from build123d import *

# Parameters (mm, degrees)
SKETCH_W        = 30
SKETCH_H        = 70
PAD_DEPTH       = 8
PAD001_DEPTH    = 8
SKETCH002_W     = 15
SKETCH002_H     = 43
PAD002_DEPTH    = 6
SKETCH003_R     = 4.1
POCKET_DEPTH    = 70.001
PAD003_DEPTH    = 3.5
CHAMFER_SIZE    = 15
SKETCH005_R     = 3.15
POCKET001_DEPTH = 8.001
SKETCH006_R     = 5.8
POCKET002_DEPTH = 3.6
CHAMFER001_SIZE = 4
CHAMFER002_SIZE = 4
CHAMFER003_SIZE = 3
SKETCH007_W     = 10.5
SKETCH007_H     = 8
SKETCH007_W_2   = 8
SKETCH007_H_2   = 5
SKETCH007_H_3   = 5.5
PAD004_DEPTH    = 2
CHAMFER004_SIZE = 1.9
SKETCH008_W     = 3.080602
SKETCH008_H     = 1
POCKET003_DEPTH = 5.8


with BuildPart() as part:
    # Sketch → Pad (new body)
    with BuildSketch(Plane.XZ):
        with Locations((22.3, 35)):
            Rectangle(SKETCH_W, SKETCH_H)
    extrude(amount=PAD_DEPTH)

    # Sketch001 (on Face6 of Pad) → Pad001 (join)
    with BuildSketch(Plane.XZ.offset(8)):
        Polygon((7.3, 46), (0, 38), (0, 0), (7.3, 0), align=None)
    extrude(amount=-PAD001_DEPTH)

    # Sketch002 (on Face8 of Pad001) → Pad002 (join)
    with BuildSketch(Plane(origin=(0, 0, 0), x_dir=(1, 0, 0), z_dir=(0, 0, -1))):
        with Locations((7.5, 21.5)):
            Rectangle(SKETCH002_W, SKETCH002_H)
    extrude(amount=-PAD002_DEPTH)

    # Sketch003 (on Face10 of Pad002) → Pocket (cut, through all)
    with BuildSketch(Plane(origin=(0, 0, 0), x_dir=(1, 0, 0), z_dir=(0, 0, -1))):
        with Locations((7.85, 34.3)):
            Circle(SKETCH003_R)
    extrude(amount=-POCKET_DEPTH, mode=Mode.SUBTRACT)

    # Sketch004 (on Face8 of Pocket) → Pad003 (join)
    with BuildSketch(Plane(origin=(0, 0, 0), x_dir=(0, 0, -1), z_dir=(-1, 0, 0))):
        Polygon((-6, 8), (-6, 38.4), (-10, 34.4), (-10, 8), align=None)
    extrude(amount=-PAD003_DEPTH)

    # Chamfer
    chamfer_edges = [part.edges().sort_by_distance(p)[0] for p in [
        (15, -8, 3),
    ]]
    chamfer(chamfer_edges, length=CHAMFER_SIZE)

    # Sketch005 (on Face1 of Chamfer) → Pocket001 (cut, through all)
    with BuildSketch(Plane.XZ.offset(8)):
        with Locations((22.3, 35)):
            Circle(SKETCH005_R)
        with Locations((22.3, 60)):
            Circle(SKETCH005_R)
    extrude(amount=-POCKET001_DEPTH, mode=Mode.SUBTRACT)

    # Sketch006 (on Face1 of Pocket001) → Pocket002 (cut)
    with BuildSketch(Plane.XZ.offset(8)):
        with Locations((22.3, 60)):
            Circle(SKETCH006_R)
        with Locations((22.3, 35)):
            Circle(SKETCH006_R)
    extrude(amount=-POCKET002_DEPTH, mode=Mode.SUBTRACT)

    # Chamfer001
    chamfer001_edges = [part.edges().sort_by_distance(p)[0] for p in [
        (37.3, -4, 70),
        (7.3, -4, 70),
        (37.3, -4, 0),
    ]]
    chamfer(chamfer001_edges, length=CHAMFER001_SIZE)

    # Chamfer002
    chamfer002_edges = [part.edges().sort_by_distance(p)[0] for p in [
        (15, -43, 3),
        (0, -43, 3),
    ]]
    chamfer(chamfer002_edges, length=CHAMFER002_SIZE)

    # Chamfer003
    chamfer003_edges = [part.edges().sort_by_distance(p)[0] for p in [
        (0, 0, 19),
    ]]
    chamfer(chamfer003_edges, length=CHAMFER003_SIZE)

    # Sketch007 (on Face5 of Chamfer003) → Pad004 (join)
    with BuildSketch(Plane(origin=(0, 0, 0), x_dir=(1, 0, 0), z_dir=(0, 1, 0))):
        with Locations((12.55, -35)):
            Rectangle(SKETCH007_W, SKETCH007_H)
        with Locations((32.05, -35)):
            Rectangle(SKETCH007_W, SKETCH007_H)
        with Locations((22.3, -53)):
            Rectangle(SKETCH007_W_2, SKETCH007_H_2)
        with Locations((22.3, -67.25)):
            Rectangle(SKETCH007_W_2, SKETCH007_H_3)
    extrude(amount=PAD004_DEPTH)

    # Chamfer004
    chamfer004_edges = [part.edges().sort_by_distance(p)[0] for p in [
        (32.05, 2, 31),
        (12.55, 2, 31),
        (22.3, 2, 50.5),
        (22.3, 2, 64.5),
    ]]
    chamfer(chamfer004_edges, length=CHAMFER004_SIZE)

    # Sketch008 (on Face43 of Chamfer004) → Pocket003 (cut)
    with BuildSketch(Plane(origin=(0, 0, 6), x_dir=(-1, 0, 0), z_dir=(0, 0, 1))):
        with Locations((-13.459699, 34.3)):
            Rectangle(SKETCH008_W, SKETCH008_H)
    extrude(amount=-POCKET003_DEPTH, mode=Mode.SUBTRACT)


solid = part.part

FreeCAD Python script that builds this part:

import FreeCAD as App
import Part
import Sketcher

V = App.Vector
Q = App.Units.Quantity


def edges_at(feature, points):
    """Names of the edges that pass closest to the given points."""
    edges = feature.Shape.Edges
    near = lambda p: min(range(len(edges)), key=lambda i: edges[i].distToShape(Part.Vertex(*p))[0])
    return sorted({f"Edge{near(p) + 1}" for p in points})

doc = App.newDocument("Part")
params = doc.addObject("Spreadsheet::Sheet", "Params")
for row, (alias, value) in enumerate([
    ("sketch1_width", "30 mm"),
    ("sketch1_height", "70 mm"),
    ("pad1_length", "8 mm"),
    ("sketch2_height", "38 mm"),
    ("sketch2_height2", "46 mm"),
    ("sketch2_width", "7.3 mm"),
    ("pad2_length", "8 mm"),
    ("sketch3_width", "15 mm"),
    ("sketch3_height", "43 mm"),
    ("pad3_length", "6 mm"),
    ("sketch4_diameter", "8.2 mm"),
    ("sketch5_height", "4 mm"),
    ("sketch5_width", "30.4 mm"),
    ("pad4_length", "3.5 mm"),
    ("chamfer_size", "15 mm"),
    ("sketch6_diameter", "6.3 mm"),
    ("sketch7_diameter", "11.6 mm"),
    ("pocket3_length", "3.6 mm"),
    ("chamfer2_size", "4 mm"),
    ("chamfer3_size", "4 mm"),
    ("chamfer4_size", "3 mm"),
    ("sketch8_width", "8 mm"),
    ("sketch8_height", "5 mm"),
    ("sketch8_width2", "10.5 mm"),
    ("sketch8_height2", "5.5 mm"),
    ("pad5_length", "2 mm"),
    ("chamfer5_size", "1.9 mm"),
    ("sketch9_height", "1 mm"),
    ("pocket4_length", "5.8 mm"),
], start=1):
    params.set(f"A{row}", alias)
    params.set(f"B{row}", "=" + value)
    params.setAlias(f"B{row}", alias)

body = doc.addObject("PartDesign::Body", "Body")

# Sketch on XZ plane
sketch1 = body.newObject("Sketcher::SketchObject", "Sketch")
sketch1.AttachmentSupport = (doc.getObject("XZ_Plane"), [""])
sketch1.MapMode = "FlatFace"
sketch1.addGeometry([
    Part.LineSegment(V(7, 70, 0), V(7, 0, 0)),
    Part.LineSegment(V(7, 0, 0), V(37, 0, 0)),
    Part.LineSegment(V(37, 0, 0), V(37, 70, 0)),
    Part.LineSegment(V(37, 70, 0), V(7, 70, 0)),
], False)
sketch1.addConstraint([
    Sketcher.Constraint("Coincident", 0, 2, 1, 1),
    Sketcher.Constraint("Coincident", 1, 2, 2, 1),
    Sketcher.Constraint("Coincident", 2, 2, 3, 1),
    Sketcher.Constraint("Coincident", 3, 2, 0, 1),
    Sketcher.Constraint("Vertical", 0),
    Sketcher.Constraint("Horizontal", 1),
    Sketcher.Constraint("Vertical", 2),
    Sketcher.Constraint("Horizontal", 3),
    Sketcher.Constraint("PointOnObject", 0, 2, -1),
    Sketcher.Constraint("DistanceX", 1, 1, 1, 2, 30.0),
    Sketcher.Constraint("DistanceY", 0, 2, 0, 1, 70.0),
    Sketcher.Constraint("DistanceX", -1, 1, 0, 2, 7.3),
])
sketch1.setExpression("Constraints[9]", "Params.sketch1_width")
sketch1.setExpression("Constraints[10]", "Params.sketch1_height")
pad1 = body.newObject("PartDesign::Pad", "Pad")
pad1.Profile = sketch1
pad1.setExpression("Length", "Params.pad1_length")

# Sketch on XZ plane
sketch2 = body.newObject("Sketcher::SketchObject", "Sketch001")
sketch2.AttachmentSupport = (doc.getObject("XZ_Plane"), [""])
sketch2.MapMode = "FlatFace"
sketch2.AttachmentOffset = App.Placement(V(0, 0, 8), App.Rotation())
sketch2.addGeometry([
    Part.LineSegment(V(7, 46, 0), V(0, 38, 0)),
    Part.LineSegment(V(0, 38, 0), V(0, 0, 0)),
    Part.LineSegment(V(0, 0, 0), V(7, 0, 0)),
    Part.LineSegment(V(7, 0, 0), V(7, 46, 0)),
], False)
sketch2.addConstraint([
    Sketcher.Constraint("Coincident", 0, 2, 1, 1),
    Sketcher.Constraint("Coincident", 1, 2, 2, 1),
    Sketcher.Constraint("Coincident", 2, 2, 3, 1),
    Sketcher.Constraint("Coincident", 3, 2, 0, 1),
    Sketcher.Constraint("Vertical", 1),
    Sketcher.Constraint("Horizontal", 2),
    Sketcher.Constraint("Vertical", 3),
    Sketcher.Constraint("Coincident", 1, 2, -1, 1),
    Sketcher.Constraint("DistanceY", 1, 2, 1, 1, 38.0),
    Sketcher.Constraint("DistanceY", 3, 1, 3, 2, 46.0),
    Sketcher.Constraint("DistanceX", 2, 1, 2, 2, 7.3),
])
sketch2.setExpression("Constraints[8]", "Params.sketch2_height")
sketch2.setExpression("Constraints[9]", "Params.sketch2_height2")
sketch2.setExpression("Constraints[10]", "Params.sketch2_width")
pad2 = body.newObject("PartDesign::Pad", "Pad001")
pad2.Profile = sketch2
pad2.setExpression("Length", "Params.pad2_length")
pad2.Reversed = True

# Sketch on XY plane
sketch3 = body.newObject("Sketcher::SketchObject", "Sketch002")
sketch3.AttachmentSupport = (doc.getObject("XY_Plane"), [""])
sketch3.MapMode = "FlatFace"
sketch3.addGeometry([
    Part.LineSegment(V(0, -43, 0), V(0, 0, 0)),
    Part.LineSegment(V(0, 0, 0), V(15, 0, 0)),
    Part.LineSegment(V(15, 0, 0), V(15, -43, 0)),
    Part.LineSegment(V(15, -43, 0), V(0, -43, 0)),
], False)
sketch3.addConstraint([
    Sketcher.Constraint("Coincident", 0, 2, 1, 1),
    Sketcher.Constraint("Coincident", 1, 2, 2, 1),
    Sketcher.Constraint("Coincident", 2, 2, 3, 1),
    Sketcher.Constraint("Coincident", 3, 2, 0, 1),
    Sketcher.Constraint("Vertical", 0),
    Sketcher.Constraint("Horizontal", 1),
    Sketcher.Constraint("Vertical", 2),
    Sketcher.Constraint("Horizontal", 3),
    Sketcher.Constraint("Coincident", 0, 2, -1, 1),
    Sketcher.Constraint("DistanceX", 1, 1, 1, 2, 15.0),
    Sketcher.Constraint("DistanceY", 0, 1, 0, 2, 43.0),
])
sketch3.setExpression("Constraints[9]", "Params.sketch3_width")
sketch3.setExpression("Constraints[10]", "Params.sketch3_height")
pad3 = body.newObject("PartDesign::Pad", "Pad002")
pad3.Profile = sketch3
pad3.setExpression("Length", "Params.pad3_length")

# Sketch on XY plane
sketch4 = body.newObject("Sketcher::SketchObject", "Sketch003")
sketch4.AttachmentSupport = (doc.getObject("XY_Plane"), [""])
sketch4.MapMode = "FlatFace"
sketch4.addGeometry(Part.Circle(V(7.8, -34.3, 0), V(0, 0, 1), 4.1), False)
sketch4.addConstraint([
    Sketcher.Constraint("Diameter", 0, 8.2),
    Sketcher.Constraint("DistanceY", 0, 3, -1, 1, 34.3),
    Sketcher.Constraint("DistanceX", -1, 1, 0, 3, 7.85),
])
sketch4.setExpression("Constraints[0]", "Params.sketch4_diameter")
pocket1 = body.newObject("PartDesign::Pocket", "Pocket")
pocket1.Profile = sketch4
pocket1.Type = "ThroughAll"
pocket1.Reversed = True

# Sketch on YZ plane
sketch5 = body.newObject("Sketcher::SketchObject", "Sketch004")
sketch5.AttachmentSupport = (doc.getObject("YZ_Plane"), [""])
sketch5.MapMode = "FlatFace"
sketch5.addGeometry([
    Part.LineSegment(V(-8, 6, 0), V(-38.4, 6, 0)),
    Part.LineSegment(V(-38.4, 6, 0), V(-34.4, 10, 0)),
    Part.LineSegment(V(-34.4, 10, 0), V(-8, 10, 0)),
    Part.LineSegment(V(-8, 10, 0), V(-8, 6, 0)),
], False)
sketch5.addConstraint([
    Sketcher.Constraint("Coincident", 0, 2, 1, 1),
    Sketcher.Constraint("Coincident", 1, 2, 2, 1),
    Sketcher.Constraint("Coincident", 2, 2, 3, 1),
    Sketcher.Constraint("Coincident", 3, 2, 0, 1),
    Sketcher.Constraint("Horizontal", 0),
    Sketcher.Constraint("Horizontal", 2),
    Sketcher.Constraint("Vertical", 3),
    Sketcher.Constraint("DistanceY", 3, 2, 3, 1, 4.0),
    Sketcher.Constraint("Angle", 1, Q("45 deg")),
    Sketcher.Constraint("DistanceX", 0, 2, 0, 1, 30.4),
    Sketcher.Constraint("DistanceY", -1, 1, 0, 2, 6.0),
    Sketcher.Constraint("DistanceX", 2, 2, -1, 1, 8.0),
])
sketch5.setExpression("Constraints[7]", "Params.sketch5_height")
sketch5.setExpression("Constraints[9]", "Params.sketch5_width")
pad4 = body.newObject("PartDesign::Pad", "Pad003")
pad4.Profile = sketch5
pad4.setExpression("Length", "Params.pad4_length")
doc.recompute()

chamfer = body.newObject("PartDesign::Chamfer", "Chamfer")
chamfer.Base = (pad4, edges_at(pad4, [(15, -8, 3)]))
chamfer.setExpression("Size", "Params.chamfer_size")

# Sketch on XZ plane
sketch6 = body.newObject("Sketcher::SketchObject", "Sketch005")
sketch6.AttachmentSupport = (doc.getObject("XZ_Plane"), [""])
sketch6.MapMode = "FlatFace"
sketch6.AttachmentOffset = App.Placement(V(0, 0, 8), App.Rotation())
sketch6.addGeometry([
    Part.Circle(V(22.3, 35, 0), V(0, 0, 1), 3.1),
    Part.Circle(V(22.3, 60, 0), V(0, 0, 1), 3.1),
], False)
sketch6.addConstraint([
    Sketcher.Constraint("Equal", 0, 1),
    Sketcher.Constraint("Vertical", 0, 3, 1, 3),
    Sketcher.Constraint("Diameter", 0, 6.3),
    Sketcher.Constraint("DistanceY", -1, 1, 0, 3, 35.0),
    Sketcher.Constraint("DistanceY", -1, 1, 1, 3, 60.0),
    Sketcher.Constraint("DistanceX", -1, 1, 0, 3, 22.3),
])
sketch6.setExpression("Constraints[2]", "Params.sketch6_diameter")
pocket2 = body.newObject("PartDesign::Pocket", "Pocket001")
pocket2.Profile = sketch6
pocket2.Type = "ThroughAll"

# Sketch on XZ plane
sketch7 = body.newObject("Sketcher::SketchObject", "Sketch006")
sketch7.AttachmentSupport = (doc.getObject("XZ_Plane"), [""])
sketch7.MapMode = "FlatFace"
sketch7.AttachmentOffset = App.Placement(V(0, 0, 8), App.Rotation())
sketch7.addGeometry([
    Part.Circle(V(22, 60, 0), V(0, 0, 1), 6),
    Part.Circle(V(22, 35, 0), V(0, 0, 1), 6),
], False)
sketch7.addConstraint([
    Sketcher.Constraint("Equal", 0, 1),
    Sketcher.Constraint("Vertical", 0, 3, 1, 3),
    Sketcher.Constraint("Diameter", 0, 11.6),
    Sketcher.Constraint("DistanceY", -1, 1, 0, 3, 60.0),
    Sketcher.Constraint("DistanceY", -1, 1, 1, 3, 35.0),
    Sketcher.Constraint("DistanceX", -1, 1, 0, 3, 22.3),
])
sketch7.setExpression("Constraints[2]", "Params.sketch7_diameter")
pocket3 = body.newObject("PartDesign::Pocket", "Pocket002")
pocket3.Profile = sketch7
pocket3.setExpression("Length", "Params.pocket3_length")
doc.recompute()

chamfer2 = body.newObject("PartDesign::Chamfer", "Chamfer001")
chamfer2.Base = (pocket3, edges_at(pocket3, [(37.3, -4, 70), (7.3, -4, 70), (37.3, -4, 0)]))
chamfer2.setExpression("Size", "Params.chamfer2_size")
doc.recompute()

chamfer3 = body.newObject("PartDesign::Chamfer", "Chamfer002")
chamfer3.Base = (chamfer2, edges_at(chamfer2, [(15, -43, 3), (0, -43, 3)]))
chamfer3.setExpression("Size", "Params.chamfer3_size")
doc.recompute()

chamfer4 = body.newObject("PartDesign::Chamfer", "Chamfer003")
chamfer4.Base = (chamfer3, edges_at(chamfer3, [(0, 0, 19)]))
chamfer4.setExpression("Size", "Params.chamfer4_size")

# Sketch on XZ plane
sketch8 = body.newObject("Sketcher::SketchObject", "Sketch007")
sketch8.AttachmentSupport = (doc.getObject("XZ_Plane"), [""])
sketch8.MapMode = "FlatFace"
sketch8.addGeometry([
    Part.LineSegment(V(7, 31, 0), V(7, 39, 0)),  # 0
    Part.LineSegment(V(7, 39, 0), V(18, 39, 0)),  # 1
    Part.LineSegment(V(18, 39, 0), V(18, 31, 0)),  # 2
    Part.LineSegment(V(18, 31, 0), V(7, 31, 0)),  # 3
    Part.LineSegment(V(27, 31, 0), V(27, 39, 0)),  # 4
    Part.LineSegment(V(27, 39, 0), V(37, 39, 0)),  # 5
    Part.LineSegment(V(37, 39, 0), V(37, 31, 0)),  # 6
    Part.LineSegment(V(37, 31, 0), V(27, 31, 0)),  # 7
    Part.LineSegment(V(18, 50, 0), V(18, 56, 0)),  # 8
    Part.LineSegment(V(18, 56, 0), V(26, 56, 0)),  # 9
    Part.LineSegment(V(26, 56, 0), V(26, 50, 0)),  # 10
    Part.LineSegment(V(26, 50, 0), V(18, 50, 0)),  # 11
    Part.LineSegment(V(18, 64, 0), V(18, 70, 0)),  # 12
    Part.LineSegment(V(18, 70, 0), V(26, 70, 0)),  # 13
    Part.LineSegment(V(26, 70, 0), V(26, 64, 0)),  # 14
    Part.LineSegment(V(26, 64, 0), V(18, 64, 0)),  # 15
], False)
sketch8.addConstraint([
    Sketcher.Constraint("Coincident", 0, 2, 1, 1),
    Sketcher.Constraint("Coincident", 1, 2, 2, 1),
    Sketcher.Constraint("Coincident", 2, 2, 3, 1),
    Sketcher.Constraint("Coincident", 3, 2, 0, 1),
    Sketcher.Constraint("Coincident", 4, 2, 5, 1),
    Sketcher.Constraint("Coincident", 5, 2, 6, 1),
    Sketcher.Constraint("Coincident", 6, 2, 7, 1),
    Sketcher.Constraint("Coincident", 7, 2, 4, 1),
    Sketcher.Constraint("Coincident", 8, 2, 9, 1),
    Sketcher.Constraint("Coincident", 9, 2, 10, 1),
    Sketcher.Constraint("Coincident", 10, 2, 11, 1),
    Sketcher.Constraint("Coincident", 11, 2, 8, 1),
    Sketcher.Constraint("Coincident", 12, 2, 13, 1),
    Sketcher.Constraint("Coincident", 13, 2, 14, 1),
    Sketcher.Constraint("Coincident", 14, 2, 15, 1),
    Sketcher.Constraint("Coincident", 15, 2, 12, 1),
    Sketcher.Constraint("Vertical", 0),
    Sketcher.Constraint("Horizontal", 1),
    Sketcher.Constraint("Vertical", 2),
    Sketcher.Constraint("Horizontal", 3),
    Sketcher.Constraint("Vertical", 4),
    Sketcher.Constraint("Horizontal", 5),
    Sketcher.Constraint("Vertical", 6),
    Sketcher.Constraint("Horizontal", 7),
    Sketcher.Constraint("Vertical", 8),
    Sketcher.Constraint("Horizontal", 9),
    Sketcher.Constraint("Vertical", 10),
    Sketcher.Constraint("Horizontal", 11),
    Sketcher.Constraint("Vertical", 12),
    Sketcher.Constraint("Horizontal", 13),
    Sketcher.Constraint("Vertical", 14),
    Sketcher.Constraint("Horizontal", 15),
    Sketcher.Constraint("Horizontal", 1, 2, 4, 2),
    Sketcher.Constraint("Horizontal", 3, 2, 6, 2),
    Sketcher.Constraint("Vertical", 11, 2, 12, 2),
    Sketcher.Constraint("Vertical", 10, 2, 13, 2),
    Sketcher.Constraint("Equal", 3, 5),
    Sketcher.Constraint("Equal", 15, 0),
    Sketcher.Constraint("DistanceX", 9, 1, 9, 2, 8.0),
    Sketcher.Constraint("DistanceY", 8, 1, 8, 2, 5.0),
    Sketcher.Constraint("DistanceX", 1, 1, 1, 2, 10.5),
    Sketcher.Constraint("DistanceY", 12, 1, 12, 2, 5.5),
    Sketcher.Constraint("DistanceY", -1, 1, 0, 2, 39.0),
    Sketcher.Constraint("DistanceY", -1, 1, 12, 2, 70.0),
    Sketcher.Constraint("DistanceX", 1, 2, 4, 2, 9.0),
    Sketcher.Constraint("DistanceX", 0, 2, 8, 2, 11.0),
    Sketcher.Constraint("DistanceY", 9, 2, 14, 2, 9.0),
    Sketcher.Constraint("DistanceX", -1, 1, 0, 2, 7.3),
])
sketch8.setExpression("Constraints[38]", "Params.sketch8_width")
sketch8.setExpression("Constraints[39]", "Params.sketch8_height")
sketch8.setExpression("Constraints[40]", "Params.sketch8_width2")
sketch8.setExpression("Constraints[41]", "Params.sketch8_height2")
pad5 = body.newObject("PartDesign::Pad", "Pad004")
pad5.Profile = sketch8
pad5.setExpression("Length", "Params.pad5_length")
pad5.Reversed = True
doc.recompute()

chamfer5 = body.newObject("PartDesign::Chamfer", "Chamfer004")
chamfer5.Base = (pad5, edges_at(pad5, [
    (32.05, 2, 31),
    (12.55, 2, 31),
    (22.3, 2, 50.5),
    (22.3, 2, 64.5),
]))
chamfer5.setExpression("Size", "Params.chamfer5_size")

# Sketch on XY plane
sketch9 = body.newObject("Sketcher::SketchObject", "Sketch008")
sketch9.AttachmentSupport = (doc.getObject("XY_Plane"), [""])
sketch9.MapMode = "FlatFace"
sketch9.AttachmentOffset = App.Placement(V(0, 0, 6), App.Rotation())
sketch9.addGeometry([
    Part.LineSegment(V(15, -34.8, 0), V(15, -33.8, 0)),
    Part.LineSegment(V(15, -33.8, 0), V(11.9, -33.8, 0)),
    Part.LineSegment(V(11.9, -33.8, 0), V(11.9, -34.8, 0)),
    Part.LineSegment(V(11.9, -34.8, 0), V(15, -34.8, 0)),
], False)
sketch9.addConstraint([
    Sketcher.Constraint("Coincident", 0, 2, 1, 1),
    Sketcher.Constraint("Coincident", 1, 2, 2, 1),
    Sketcher.Constraint("Coincident", 2, 2, 3, 1),
    Sketcher.Constraint("Coincident", 3, 2, 0, 1),
    Sketcher.Constraint("Vertical", 0),
    Sketcher.Constraint("Horizontal", 1),
    Sketcher.Constraint("Vertical", 2),
    Sketcher.Constraint("Horizontal", 3),
    Sketcher.Constraint("DistanceY", 0, 1, 0, 2, 1.0),
    Sketcher.Constraint("DistanceX", -1, 1, 0, 2, 15.0),
    Sketcher.Constraint("DistanceY", 0, 2, -1, 1, 33.8),
    Sketcher.Constraint("DistanceX", 1, 2, 1, 1, 3.080602),
])
sketch9.setExpression("Constraints[8]", "Params.sketch9_height")
pocket4 = body.newObject("PartDesign::Pocket", "Pocket003")
pocket4.Profile = sketch9
pocket4.setExpression("Length", "Params.pocket4_length")

doc.recompute()
